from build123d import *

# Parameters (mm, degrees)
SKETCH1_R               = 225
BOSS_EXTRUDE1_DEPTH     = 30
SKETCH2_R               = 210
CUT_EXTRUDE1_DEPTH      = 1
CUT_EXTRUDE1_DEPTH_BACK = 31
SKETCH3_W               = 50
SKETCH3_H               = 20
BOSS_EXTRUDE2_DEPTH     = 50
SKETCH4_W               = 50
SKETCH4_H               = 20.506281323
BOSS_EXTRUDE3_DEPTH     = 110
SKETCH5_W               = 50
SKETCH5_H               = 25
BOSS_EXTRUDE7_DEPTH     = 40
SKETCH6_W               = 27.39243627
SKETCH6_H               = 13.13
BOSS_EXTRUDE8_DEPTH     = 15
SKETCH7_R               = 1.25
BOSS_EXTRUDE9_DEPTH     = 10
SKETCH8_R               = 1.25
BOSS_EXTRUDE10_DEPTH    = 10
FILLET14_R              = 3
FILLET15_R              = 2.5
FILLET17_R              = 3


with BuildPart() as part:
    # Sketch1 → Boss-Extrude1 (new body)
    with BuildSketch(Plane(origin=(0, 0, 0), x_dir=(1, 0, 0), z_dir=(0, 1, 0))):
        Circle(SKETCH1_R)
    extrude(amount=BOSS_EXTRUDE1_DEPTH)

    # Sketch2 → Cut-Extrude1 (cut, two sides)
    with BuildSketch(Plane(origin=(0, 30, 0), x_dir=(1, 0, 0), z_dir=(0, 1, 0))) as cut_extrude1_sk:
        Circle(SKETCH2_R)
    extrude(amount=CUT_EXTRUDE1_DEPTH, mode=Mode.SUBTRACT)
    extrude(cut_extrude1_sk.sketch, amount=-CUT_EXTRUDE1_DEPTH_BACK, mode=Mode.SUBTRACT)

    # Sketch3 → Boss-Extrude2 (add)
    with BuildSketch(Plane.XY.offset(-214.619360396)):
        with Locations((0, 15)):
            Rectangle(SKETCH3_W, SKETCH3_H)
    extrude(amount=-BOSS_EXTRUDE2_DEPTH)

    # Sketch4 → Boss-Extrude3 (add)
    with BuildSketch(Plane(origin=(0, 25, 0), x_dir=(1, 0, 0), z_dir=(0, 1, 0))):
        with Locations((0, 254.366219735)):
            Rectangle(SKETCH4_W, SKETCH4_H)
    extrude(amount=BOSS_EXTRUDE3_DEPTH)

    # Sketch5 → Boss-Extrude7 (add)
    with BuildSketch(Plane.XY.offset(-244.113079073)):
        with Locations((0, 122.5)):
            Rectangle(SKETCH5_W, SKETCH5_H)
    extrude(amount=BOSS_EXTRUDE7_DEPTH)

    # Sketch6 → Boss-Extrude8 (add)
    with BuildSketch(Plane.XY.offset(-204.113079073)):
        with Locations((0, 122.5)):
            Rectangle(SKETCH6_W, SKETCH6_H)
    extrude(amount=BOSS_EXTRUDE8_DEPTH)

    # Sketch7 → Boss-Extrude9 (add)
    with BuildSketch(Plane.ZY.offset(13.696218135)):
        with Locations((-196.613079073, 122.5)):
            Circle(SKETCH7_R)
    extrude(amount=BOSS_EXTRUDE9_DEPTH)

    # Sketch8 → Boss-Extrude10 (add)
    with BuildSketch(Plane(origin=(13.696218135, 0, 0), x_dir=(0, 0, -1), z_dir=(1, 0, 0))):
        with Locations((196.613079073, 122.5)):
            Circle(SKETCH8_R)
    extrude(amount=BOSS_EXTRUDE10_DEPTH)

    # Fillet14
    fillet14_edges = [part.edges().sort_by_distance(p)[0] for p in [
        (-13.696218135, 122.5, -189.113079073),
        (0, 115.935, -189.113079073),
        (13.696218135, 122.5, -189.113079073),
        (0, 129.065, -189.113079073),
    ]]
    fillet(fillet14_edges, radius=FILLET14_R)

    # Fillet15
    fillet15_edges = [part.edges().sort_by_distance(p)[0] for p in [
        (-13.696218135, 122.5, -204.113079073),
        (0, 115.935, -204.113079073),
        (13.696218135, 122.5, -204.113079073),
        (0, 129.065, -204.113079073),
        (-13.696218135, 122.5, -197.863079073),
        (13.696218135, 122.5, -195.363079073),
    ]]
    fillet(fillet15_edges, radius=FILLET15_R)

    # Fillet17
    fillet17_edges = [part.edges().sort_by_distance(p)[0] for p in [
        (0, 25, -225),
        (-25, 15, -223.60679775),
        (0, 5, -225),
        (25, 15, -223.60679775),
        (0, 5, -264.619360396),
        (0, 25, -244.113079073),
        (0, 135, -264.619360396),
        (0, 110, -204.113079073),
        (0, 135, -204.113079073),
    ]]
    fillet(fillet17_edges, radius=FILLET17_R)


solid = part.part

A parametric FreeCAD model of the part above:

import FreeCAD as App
import Part
import Sketcher
Q = App.Units.Quantity


def edges_at(feature, points):
    """Names of the edges that pass closest to the given points."""
    edges = feature.Shape.Edges
    near = lambda p: min(range(len(edges)), key=lambda i: edges[i].distToShape(Part.Vertex(*p))[0])
    return sorted({f"Edge{near(p) + 1}" for p in points})


def add_polygon(sketch, points):
    """Adds a closed chain of lines whose ends are joined by coincident constraints."""
    first, n = sketch.GeometryCount, len(points)
    for a, b in zip(points, points[1:] + points[:1]):
        sketch.addGeometry(Part.LineSegment(App.Vector(*a, 0), App.Vector(*b, 0)), False)
    for i in range(n):
        sketch.addConstraint(Sketcher.Constraint("Coincident", first + i, 2, first + (i + 1) % n, 1))

doc = App.newDocument("Part")
body = doc.addObject("PartDesign::Body", "Body")

# Sketch on XZ plane
sketch1 = body.newObject("Sketcher::SketchObject", "Sketch")
sketch1.AttachmentSupport = (doc.getObject("XZ_Plane"), [""])
sketch1.MapMode = "FlatFace"
sketch1.addGeometry(Part.Circle(App.Vector(0, 0, 0), App.Vector(0, 0, 1), 225), False)
sketch1.addConstraint([
    Sketcher.Constraint("Coincident", 0, 3, -1, 1),
    Sketcher.Constraint("Diameter", 0, Q("450 mm")),
])
pad1 = body.newObject("PartDesign::Pad", "Pad")
pad1.Profile = sketch1
pad1.Length = 30
pad1.Reversed = True

# Sketch on XZ plane
sketch2 = body.newObject("Sketcher::SketchObject", "Sketch001")
sketch2.AttachmentSupport = (doc.getObject("XZ_Plane"), [""])
sketch2.MapMode = "FlatFace"
sketch2.AttachmentOffset = App.Placement(App.Vector(0, 0, -30), App.Rotation())
sketch2.addGeometry(Part.Circle(App.Vector(0, 0, 0), App.Vector(0, 0, 1), 210), False)
sketch2.addConstraint([
    Sketcher.Constraint("Coincident", 0, 3, -1, 1),
    Sketcher.Constraint("Diameter", 0, Q("420 mm")),
])
pocket1 = body.newObject("PartDesign::Pocket", "Pocket")
pocket1.Profile = sketch2
pocket1.Type = "ThroughAll"
pocket1.Midplane = True

# Sketch on XY plane
sketch3 = body.newObject("Sketcher::SketchObject", "Sketch002")
sketch3.AttachmentSupport = (doc.getObject("XY_Plane"), [""])
sketch3.MapMode = "FlatFace"
sketch3.AttachmentOffset = App.Placement(App.Vector(0, 0, -214.61936), App.Rotation())
add_polygon(sketch3, [(-25, 25), (-25, 5), (25, 5), (25, 25)])  # lines 0-3
sketch3.addConstraint([
    Sketcher.Constraint("Vertical", 0),
    Sketcher.Constraint("Horizontal", 1),
    Sketcher.Constraint("Vertical", 2),
    Sketcher.Constraint("Horizontal", 3),
    Sketcher.Constraint("DistanceX", 1, 1, 1, 2, Q("50 mm")),
    Sketcher.Constraint("DistanceY", 0, 2, 0, 1, Q("20 mm")),
    Sketcher.Constraint("DistanceX", 0, 2, -1, 1, Q("25 mm")),
    Sketcher.Constraint("DistanceY", -1, 1, 0, 2, Q("5 mm")),
])
pad2 = body.newObject("PartDesign::Pad", "Pad001")
pad2.Profile = sketch3
pad2.Length = 50
pad2.Reversed = True

# Sketch on XZ plane
sketch4 = body.newObject("Sketcher::SketchObject", "Sketch003")
sketch4.AttachmentSupport = (doc.getObject("XZ_Plane"), [""])
sketch4.MapMode = "FlatFace"
sketch4.AttachmentOffset = App.Placement(App.Vector(0, 0, -25), App.Rotation())
add_polygon(sketch4, [(-25, -265), (-25, -244), (25, -244), (25, -265)])  # lines 0-3
sketch4.addConstraint([
    Sketcher.Constraint("Vertical", 0),
    Sketcher.Constraint("Horizontal", 1),
    Sketcher.Constraint("Vertical", 2),
    Sketcher.Constraint("Horizontal", 3),
    Sketcher.Constraint("DistanceX", 1, 1, 1, 2, Q("50 mm")),
    Sketcher.Constraint("DistanceX", 0, 2, -1, 1, Q("25 mm")),
    Sketcher.Constraint("DistanceY", 0, 1, 0, 2, Q("20.506281 mm")),
    Sketcher.Constraint("DistanceY", 0, 2, -1, 1, Q("244.113079 mm")),
])
pad3 = body.newObject("PartDesign::Pad", "Pad002")
pad3.Profile = sketch4
pad3.Length = 110
pad3.Reversed = True

# Sketch on XY plane
sketch5 = body.newObject("Sketcher::SketchObject", "Sketch004")
sketch5.AttachmentSupport = (doc.getObject("XY_Plane"), [""])
sketch5.MapMode = "FlatFace"
sketch5.AttachmentOffset = App.Placement(App.Vector(0, 0, -244.113079), App.Rotation())
add_polygon(sketch5, [(-25, 135), (-25, 110), (25, 110), (25, 135)])  # lines 0-3
sketch5.addConstraint([
    Sketcher.Constraint("Vertical", 0),
    Sketcher.Constraint("Horizontal", 1),
    Sketcher.Constraint("Vertical", 2),
    Sketcher.Constraint("Horizontal", 3),
    Sketcher.Constraint("DistanceX", 1, 1, 1, 2, Q("50 mm")),
    Sketcher.Constraint("DistanceY", 0, 2, 0, 1, Q("25 mm")),
    Sketcher.Constraint("DistanceX", 0, 2, -1, 1, Q("25 mm")),
    Sketcher.Constraint("DistanceY", -1, 1, 0, 2, Q("110 mm")),
])
pad4 = body.newObject("PartDesign::Pad", "Pad003")
pad4.Profile = sketch5
pad4.Length = 40

# Sketch on XY plane
sketch6 = body.newObject("Sketcher::SketchObject", "Sketch005")
sketch6.AttachmentSupport = (doc.getObject("XY_Plane"), [""])
sketch6.MapMode = "FlatFace"
sketch6.AttachmentOffset = App.Placement(App.Vector(0, 0, -204.113079), App.Rotation())
add_polygon(sketch6, [(-14, 129), (-14, 116), (14, 116), (14, 129)])  # lines 0-3
sketch6.addConstraint([
    Sketcher.Constraint("Vertical", 0),
    Sketcher.Constraint("Horizontal", 1),
    Sketcher.Constraint("Vertical", 2),
    Sketcher.Constraint("Horizontal", 3),
    Sketcher.Constraint("DistanceY", 0, 2, 0, 1, Q("13.13 mm")),
    Sketcher.Constraint("DistanceY", -1, 1, 0, 2, Q("115.935 mm")),
    Sketcher.Constraint("DistanceX", 1, 1, 1, 2, Q("27.392436 mm")),
    Sketcher.Constraint("DistanceX", 0, 2, -1, 1, Q("13.696218 mm")),
])
pad5 = body.newObject("PartDesign::Pad", "Pad004")
pad5.Profile = sketch6
pad5.Length = 15

# Sketch on YZ plane
sketch7 = body.newObject("Sketcher::SketchObject", "Sketch006")
sketch7.AttachmentSupport = (doc.getObject("YZ_Plane"), [""])
sketch7.MapMode = "FlatFace"
sketch7.AttachmentOffset = App.Placement(App.Vector(0, 0, -13.696218), App.Rotation())
sketch7.addGeometry(Part.Circle(App.Vector(122.5, -196.6, 0), App.Vector(0, 0, 1), 1.2), False)
sketch7.addConstraint([
    Sketcher.Constraint("Diameter", 0, Q("2.5 mm")),
    Sketcher.Constraint("DistanceX", -1, 1, 0, 3, Q("122.5 mm")),
    Sketcher.Constraint("DistanceY", 0, 3, -1, 1, Q("196.613079 mm")),
])
pad6 = body.newObject("PartDesign::Pad", "Pad005")
pad6.Profile = sketch7
pad6.Length = 10
pad6.Reversed = True

# Sketch on YZ plane
sketch8 = body.newObject("Sketcher::SketchObject", "Sketch007")
sketch8.AttachmentSupport = (doc.getObject("YZ_Plane"), [""])
sketch8.MapMode = "FlatFace"
sketch8.AttachmentOffset = App.Placement(App.Vector(0, 0, 13.696218), App.Rotation())
sketch8.addGeometry(Part.Circle(App.Vector(122.5, -196.6, 0), App.Vector(0, 0, 1), 1.2), False)
sketch8.addConstraint([
    Sketcher.Constraint("Diameter", 0, Q("2.5 mm")),
    Sketcher.Constraint("DistanceX", -1, 1, 0, 3, Q("122.5 mm")),
    Sketcher.Constraint("DistanceY", 0, 3, -1, 1, Q("196.613079 mm")),
])
pad7 = body.newObject("PartDesign::Pad", "Pad006")
pad7.Profile = sketch8
pad7.Length = 10
doc.recompute()

fillet = body.newObject("PartDesign::Fillet", "Fillet")
fillet.Base = (pad7, edges_at(pad7, [
    (-13.696, 122.5, -189.113),
    (0, 115.935, -189.113),
    (13.696, 122.5, -189.113),
    (0, 129.065, -189.113),
]))
fillet.Radius = 3
doc.recompute()

fillet2 = body.newObject("PartDesign::Fillet", "Fillet001")
fillet2.Base = (fillet, edges_at(fillet, [
    (-13.696, 122.5, -204.113),
    (0, 115.935, -204.113),
    (13.696, 122.5, -204.113),
    (0, 129.065, -204.113),
    (-13.696, 122.5, -197.863),
    (13.696, 122.5, -195.363),
]))
fillet2.Radius = 2.5
doc.recompute()

fillet3 = body.newObject("PartDesign::Fillet", "Fillet002")
fillet3.Base = (fillet2, edges_at(fillet2, [
    (0, 25, -225),
    (-25, 15, -223.607),
    (0, 5, -225),
    (25, 15, -223.607),
    (0, 5, -264.619),
    (0, 25, -244.113),
    (0, 135, -264.619),
    (0, 110, -204.113),
    (0, 135, -204.113),
]))
fillet3.Radius = 3

doc.recompute()
